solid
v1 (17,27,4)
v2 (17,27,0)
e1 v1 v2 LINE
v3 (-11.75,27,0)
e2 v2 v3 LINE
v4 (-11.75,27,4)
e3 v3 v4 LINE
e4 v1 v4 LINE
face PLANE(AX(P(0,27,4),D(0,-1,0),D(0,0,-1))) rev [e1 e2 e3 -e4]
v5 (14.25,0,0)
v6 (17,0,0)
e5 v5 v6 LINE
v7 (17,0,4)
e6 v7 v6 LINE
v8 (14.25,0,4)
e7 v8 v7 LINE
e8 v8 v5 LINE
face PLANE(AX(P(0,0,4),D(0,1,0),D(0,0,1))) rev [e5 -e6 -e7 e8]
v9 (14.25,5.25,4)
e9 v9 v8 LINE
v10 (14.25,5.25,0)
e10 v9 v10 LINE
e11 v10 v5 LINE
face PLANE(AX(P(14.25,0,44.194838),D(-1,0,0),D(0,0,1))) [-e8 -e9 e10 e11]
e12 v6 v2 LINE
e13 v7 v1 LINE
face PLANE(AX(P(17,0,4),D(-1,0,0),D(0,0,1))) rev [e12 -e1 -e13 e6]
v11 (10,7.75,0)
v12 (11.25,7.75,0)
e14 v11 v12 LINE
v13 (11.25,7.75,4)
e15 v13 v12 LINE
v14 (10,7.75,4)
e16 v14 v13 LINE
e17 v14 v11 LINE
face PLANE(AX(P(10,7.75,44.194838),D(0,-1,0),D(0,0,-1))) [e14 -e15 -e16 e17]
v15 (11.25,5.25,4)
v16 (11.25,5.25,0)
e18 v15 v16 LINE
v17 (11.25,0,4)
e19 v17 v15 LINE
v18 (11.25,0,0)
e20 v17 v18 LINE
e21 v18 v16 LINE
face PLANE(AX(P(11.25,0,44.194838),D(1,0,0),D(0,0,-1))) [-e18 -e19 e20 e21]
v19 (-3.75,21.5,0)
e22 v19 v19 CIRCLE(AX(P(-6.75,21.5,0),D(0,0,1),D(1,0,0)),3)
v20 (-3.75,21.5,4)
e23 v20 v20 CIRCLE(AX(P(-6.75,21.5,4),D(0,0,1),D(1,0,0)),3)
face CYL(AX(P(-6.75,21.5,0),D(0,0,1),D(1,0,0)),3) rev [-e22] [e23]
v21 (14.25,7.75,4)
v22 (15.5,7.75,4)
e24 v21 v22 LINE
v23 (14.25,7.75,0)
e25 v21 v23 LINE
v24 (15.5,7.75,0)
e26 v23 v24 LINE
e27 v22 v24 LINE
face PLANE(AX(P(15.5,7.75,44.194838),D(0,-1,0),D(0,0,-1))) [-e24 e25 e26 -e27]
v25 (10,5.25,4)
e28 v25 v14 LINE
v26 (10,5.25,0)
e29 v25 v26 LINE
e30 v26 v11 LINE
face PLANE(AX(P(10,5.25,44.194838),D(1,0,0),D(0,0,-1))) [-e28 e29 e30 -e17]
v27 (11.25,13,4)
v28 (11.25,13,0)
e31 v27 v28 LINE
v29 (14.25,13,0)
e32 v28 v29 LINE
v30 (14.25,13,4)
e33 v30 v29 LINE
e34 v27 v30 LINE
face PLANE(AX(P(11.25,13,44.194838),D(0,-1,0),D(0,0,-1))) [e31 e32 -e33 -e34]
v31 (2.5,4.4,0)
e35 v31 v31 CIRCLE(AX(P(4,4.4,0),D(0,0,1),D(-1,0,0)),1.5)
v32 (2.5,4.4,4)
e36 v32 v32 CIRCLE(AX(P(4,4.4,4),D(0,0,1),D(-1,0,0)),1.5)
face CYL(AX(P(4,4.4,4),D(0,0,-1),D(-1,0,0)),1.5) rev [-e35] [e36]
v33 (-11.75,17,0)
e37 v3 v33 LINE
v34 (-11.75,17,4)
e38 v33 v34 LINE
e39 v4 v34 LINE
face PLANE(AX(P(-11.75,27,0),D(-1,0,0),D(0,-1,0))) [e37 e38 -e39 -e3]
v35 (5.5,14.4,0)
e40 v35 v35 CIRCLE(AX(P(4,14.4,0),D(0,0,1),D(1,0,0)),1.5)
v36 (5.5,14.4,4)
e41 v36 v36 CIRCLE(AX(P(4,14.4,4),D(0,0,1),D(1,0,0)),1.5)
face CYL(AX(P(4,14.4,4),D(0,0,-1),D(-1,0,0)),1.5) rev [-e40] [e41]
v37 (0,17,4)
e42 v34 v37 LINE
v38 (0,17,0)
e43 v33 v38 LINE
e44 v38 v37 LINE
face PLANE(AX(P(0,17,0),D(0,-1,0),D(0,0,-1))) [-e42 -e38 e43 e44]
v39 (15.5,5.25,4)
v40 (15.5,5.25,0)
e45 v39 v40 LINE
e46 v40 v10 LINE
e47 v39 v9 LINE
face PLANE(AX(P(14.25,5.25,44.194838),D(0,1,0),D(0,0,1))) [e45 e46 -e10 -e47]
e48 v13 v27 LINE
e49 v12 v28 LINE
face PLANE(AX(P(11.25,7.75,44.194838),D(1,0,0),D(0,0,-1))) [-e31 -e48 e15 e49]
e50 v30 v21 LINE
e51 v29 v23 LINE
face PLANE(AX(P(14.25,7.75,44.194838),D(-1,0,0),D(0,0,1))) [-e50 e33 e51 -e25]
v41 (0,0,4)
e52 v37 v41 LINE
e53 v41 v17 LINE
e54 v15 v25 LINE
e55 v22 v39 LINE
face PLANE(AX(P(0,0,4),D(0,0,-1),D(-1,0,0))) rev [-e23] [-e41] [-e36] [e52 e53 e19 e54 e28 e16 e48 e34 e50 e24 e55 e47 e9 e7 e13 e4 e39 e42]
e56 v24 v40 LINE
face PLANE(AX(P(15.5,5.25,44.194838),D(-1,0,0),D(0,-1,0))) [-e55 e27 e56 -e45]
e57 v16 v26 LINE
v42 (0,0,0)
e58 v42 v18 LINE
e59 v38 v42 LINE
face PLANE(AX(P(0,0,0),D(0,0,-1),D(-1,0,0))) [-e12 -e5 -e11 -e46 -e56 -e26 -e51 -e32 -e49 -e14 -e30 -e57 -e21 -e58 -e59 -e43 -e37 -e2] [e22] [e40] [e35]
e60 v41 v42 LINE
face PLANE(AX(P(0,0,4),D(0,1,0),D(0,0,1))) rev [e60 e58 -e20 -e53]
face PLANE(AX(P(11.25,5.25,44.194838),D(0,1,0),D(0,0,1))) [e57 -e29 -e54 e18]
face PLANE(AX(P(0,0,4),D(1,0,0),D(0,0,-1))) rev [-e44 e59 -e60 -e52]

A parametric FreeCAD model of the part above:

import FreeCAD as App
import Part
import Sketcher
Q = App.Units.Quantity


def add_polygon(sketch, points):
    """Adds a closed chain of lines whose ends are joined by coincident constraints."""
    first, n = sketch.GeometryCount, len(points)
    for a, b in zip(points, points[1:] + points[:1]):
        sketch.addGeometry(Part.LineSegment(App.Vector(*a, 0), App.Vector(*b, 0)), False)
    for i in range(n):
        sketch.addConstraint(Sketcher.Constraint("Coincident", first + i, 2, first + (i + 1) % n, 1))

doc = App.newDocument("Part")
body = doc.addObject("PartDesign::Body", "Body")

sketch1 = body.newObject("Sketcher::SketchObject", "Sketch")
sketch1.AttachmentSupport = (doc.getObject("XY_Plane"), [""])
sketch1.MapMode = "FlatFace"
add_polygon(sketch1, [(0, 27), (0, 0), (17, 0), (17, 27)])
sketch1.addGeometry(Part.Circle(App.Vector(4, 4.4, 0), App.Vector(0, 0, 1), 1.5), False)
sketch1.addGeometry(Part.Circle(App.Vector(4, 14.4, 0), App.Vector(0, 0, 1), 1.5), False)
sketch1.addConstraint([
    Sketcher.Constraint("Vertical", 0),
    Sketcher.Constraint("Horizontal", 1),
    Sketcher.Constraint("Vertical", 2),
    Sketcher.Constraint("Horizontal", 3),
    Sketcher.Constraint("Coincident", 0, 2, -1, 1),
    Sketcher.Constraint("Equal", 4, 5),
    Sketcher.Constraint("Vertical", 4, 3, 5, 3),
    Sketcher.Constraint("Diameter", 4, Q("3 mm")),
    Sketcher.Constraint("DistanceX", 1, 1, 1, 2, Q("17 mm")),
    Sketcher.Constraint("DistanceY", 0, 2, 0, 1, Q("27 mm")),
    Sketcher.Constraint("DistanceX", -1, 1, 4, 3, Q("4 mm")),
    Sketcher.Constraint("DistanceY", 4, 3, 5, 3, Q("10 mm")),
    Sketcher.Constraint("DistanceY", -1, 1, 4, 3, Q("4.4 mm")),
])
pad1 = body.newObject("PartDesign::Pad", "Pad")
pad1.Profile = sketch1
pad1.Length = 4

sketch2 = body.newObject("Sketcher::SketchObject", "Sketch001")
sketch2.AttachmentSupport = (doc.getObject("XY_Plane"), [""])
sketch2.MapMode = "FlatFace"
sketch2.AttachmentOffset = App.Placement(App.Vector(0, 0, 4), App.Rotation())
add_polygon(sketch2, [(11.2, 5.2), (11.2, 0), (14.2, 0), (14.2, 5.2), (15.5, 5.2), (15.5, 7.8), (14.2, 7.8), (14.2, 13), (11.2, 13), (11.2, 7.8), (10, 7.8), (10, 5.2)])
sketch2.addConstraint([
    Sketcher.Constraint("Vertical", 0),
    Sketcher.Constraint("Horizontal", 1),
    Sketcher.Constraint("Vertical", 2),
    Sketcher.Constraint("Horizontal", 3),
    Sketcher.Constraint("Vertical", 4),
    Sketcher.Constraint("Horizontal", 5),
    Sketcher.Constraint("Vertical", 6),
    Sketcher.Constraint("Horizontal", 7),
    Sketcher.Constraint("Vertical", 8),
    Sketcher.Constraint("Horizontal", 9),
    Sketcher.Constraint("Vertical", 10),
    Sketcher.Constraint("Horizontal", 11),
    Sketcher.Constraint("PointOnObject", 0, 2, -1),
    Sketcher.Constraint("Horizontal", 5, 2, 8, 2),
    Sketcher.Constraint("Horizontal", 3, 2, 10, 2),
    Sketcher.Constraint("Vertical", 2, 2, 5, 2),
    Sketcher.Constraint("Vertical", 0, 2, 7, 2),
    Sketcher.Constraint("Equal", 5, 9),
    Sketcher.Constraint("Equal", 2, 6),
    Sketcher.Constraint("DistanceX", 1, 1, 1, 2, Q("3 mm")),
    Sketcher.Constraint("DistanceY", 4, 1, 4, 2, Q("2.5 mm")),
    Sketcher.Constraint("DistanceY", -1, 1, 6, 2, Q("13 mm")),
    Sketcher.Constraint("DistanceX", -1, 1, 9, 2, Q("10 mm")),
    Sketcher.Constraint("DistanceX", 3, 1, 3, 2, Q("1.25 mm")),
])
pocket1 = body.newObject("PartDesign::Pocket", "Pocket")
pocket1.Profile = sketch2
pocket1.Type = "ThroughAll"
pocket1.Midplane = True

sketch3 = body.newObject("Sketcher::SketchObject", "Sketch002")
sketch3.AttachmentSupport = (doc.getObject("XY_Plane"), [""])
sketch3.MapMode = "FlatFace"
sketch3.AttachmentOffset = App.Placement(App.Vector(0, 0, 4), App.Rotation())
add_polygon(sketch3, [(-11.8, 27), (-11.8, 17), (0, 17), (0, 27)])
sketch3.addGeometry(Part.Circle(App.Vector(-6.8, 21.5, 0), App.Vector(0, 0, 1), 3), False)
sketch3.addConstraint([
    Sketcher.Constraint("Vertical", 0),
    Sketcher.Constraint("Horizontal", 1),
    Sketcher.Constraint("Vertical", 2),
    Sketcher.Constraint("Horizontal", 3),
    Sketcher.Constraint("PointOnObject", 1, 2, -2),
    Sketcher.Constraint("Diameter", 4, Q("6 mm")),
    Sketcher.Constraint("DistanceY", 0, 2, 0, 1, Q("10 mm")),
    Sketcher.Constraint("DistanceY", -1, 1, 0, 2, Q("17 mm")),
    Sketcher.Constraint("DistanceX", 0, 2, 4, 3, Q("5 mm")),
    Sketcher.Constraint("DistanceX", 1, 1, 1, 2, Q("11.75 mm")),
    Sketcher.Constraint("DistanceY", -1, 1, 4, 3, Q("21.5 mm")),
])
pad2 = body.newObject("PartDesign::Pad", "Pad001")
pad2.Profile = sketch3
pad2.Length = 4
pad2.Reversed = True

doc.recompute()
